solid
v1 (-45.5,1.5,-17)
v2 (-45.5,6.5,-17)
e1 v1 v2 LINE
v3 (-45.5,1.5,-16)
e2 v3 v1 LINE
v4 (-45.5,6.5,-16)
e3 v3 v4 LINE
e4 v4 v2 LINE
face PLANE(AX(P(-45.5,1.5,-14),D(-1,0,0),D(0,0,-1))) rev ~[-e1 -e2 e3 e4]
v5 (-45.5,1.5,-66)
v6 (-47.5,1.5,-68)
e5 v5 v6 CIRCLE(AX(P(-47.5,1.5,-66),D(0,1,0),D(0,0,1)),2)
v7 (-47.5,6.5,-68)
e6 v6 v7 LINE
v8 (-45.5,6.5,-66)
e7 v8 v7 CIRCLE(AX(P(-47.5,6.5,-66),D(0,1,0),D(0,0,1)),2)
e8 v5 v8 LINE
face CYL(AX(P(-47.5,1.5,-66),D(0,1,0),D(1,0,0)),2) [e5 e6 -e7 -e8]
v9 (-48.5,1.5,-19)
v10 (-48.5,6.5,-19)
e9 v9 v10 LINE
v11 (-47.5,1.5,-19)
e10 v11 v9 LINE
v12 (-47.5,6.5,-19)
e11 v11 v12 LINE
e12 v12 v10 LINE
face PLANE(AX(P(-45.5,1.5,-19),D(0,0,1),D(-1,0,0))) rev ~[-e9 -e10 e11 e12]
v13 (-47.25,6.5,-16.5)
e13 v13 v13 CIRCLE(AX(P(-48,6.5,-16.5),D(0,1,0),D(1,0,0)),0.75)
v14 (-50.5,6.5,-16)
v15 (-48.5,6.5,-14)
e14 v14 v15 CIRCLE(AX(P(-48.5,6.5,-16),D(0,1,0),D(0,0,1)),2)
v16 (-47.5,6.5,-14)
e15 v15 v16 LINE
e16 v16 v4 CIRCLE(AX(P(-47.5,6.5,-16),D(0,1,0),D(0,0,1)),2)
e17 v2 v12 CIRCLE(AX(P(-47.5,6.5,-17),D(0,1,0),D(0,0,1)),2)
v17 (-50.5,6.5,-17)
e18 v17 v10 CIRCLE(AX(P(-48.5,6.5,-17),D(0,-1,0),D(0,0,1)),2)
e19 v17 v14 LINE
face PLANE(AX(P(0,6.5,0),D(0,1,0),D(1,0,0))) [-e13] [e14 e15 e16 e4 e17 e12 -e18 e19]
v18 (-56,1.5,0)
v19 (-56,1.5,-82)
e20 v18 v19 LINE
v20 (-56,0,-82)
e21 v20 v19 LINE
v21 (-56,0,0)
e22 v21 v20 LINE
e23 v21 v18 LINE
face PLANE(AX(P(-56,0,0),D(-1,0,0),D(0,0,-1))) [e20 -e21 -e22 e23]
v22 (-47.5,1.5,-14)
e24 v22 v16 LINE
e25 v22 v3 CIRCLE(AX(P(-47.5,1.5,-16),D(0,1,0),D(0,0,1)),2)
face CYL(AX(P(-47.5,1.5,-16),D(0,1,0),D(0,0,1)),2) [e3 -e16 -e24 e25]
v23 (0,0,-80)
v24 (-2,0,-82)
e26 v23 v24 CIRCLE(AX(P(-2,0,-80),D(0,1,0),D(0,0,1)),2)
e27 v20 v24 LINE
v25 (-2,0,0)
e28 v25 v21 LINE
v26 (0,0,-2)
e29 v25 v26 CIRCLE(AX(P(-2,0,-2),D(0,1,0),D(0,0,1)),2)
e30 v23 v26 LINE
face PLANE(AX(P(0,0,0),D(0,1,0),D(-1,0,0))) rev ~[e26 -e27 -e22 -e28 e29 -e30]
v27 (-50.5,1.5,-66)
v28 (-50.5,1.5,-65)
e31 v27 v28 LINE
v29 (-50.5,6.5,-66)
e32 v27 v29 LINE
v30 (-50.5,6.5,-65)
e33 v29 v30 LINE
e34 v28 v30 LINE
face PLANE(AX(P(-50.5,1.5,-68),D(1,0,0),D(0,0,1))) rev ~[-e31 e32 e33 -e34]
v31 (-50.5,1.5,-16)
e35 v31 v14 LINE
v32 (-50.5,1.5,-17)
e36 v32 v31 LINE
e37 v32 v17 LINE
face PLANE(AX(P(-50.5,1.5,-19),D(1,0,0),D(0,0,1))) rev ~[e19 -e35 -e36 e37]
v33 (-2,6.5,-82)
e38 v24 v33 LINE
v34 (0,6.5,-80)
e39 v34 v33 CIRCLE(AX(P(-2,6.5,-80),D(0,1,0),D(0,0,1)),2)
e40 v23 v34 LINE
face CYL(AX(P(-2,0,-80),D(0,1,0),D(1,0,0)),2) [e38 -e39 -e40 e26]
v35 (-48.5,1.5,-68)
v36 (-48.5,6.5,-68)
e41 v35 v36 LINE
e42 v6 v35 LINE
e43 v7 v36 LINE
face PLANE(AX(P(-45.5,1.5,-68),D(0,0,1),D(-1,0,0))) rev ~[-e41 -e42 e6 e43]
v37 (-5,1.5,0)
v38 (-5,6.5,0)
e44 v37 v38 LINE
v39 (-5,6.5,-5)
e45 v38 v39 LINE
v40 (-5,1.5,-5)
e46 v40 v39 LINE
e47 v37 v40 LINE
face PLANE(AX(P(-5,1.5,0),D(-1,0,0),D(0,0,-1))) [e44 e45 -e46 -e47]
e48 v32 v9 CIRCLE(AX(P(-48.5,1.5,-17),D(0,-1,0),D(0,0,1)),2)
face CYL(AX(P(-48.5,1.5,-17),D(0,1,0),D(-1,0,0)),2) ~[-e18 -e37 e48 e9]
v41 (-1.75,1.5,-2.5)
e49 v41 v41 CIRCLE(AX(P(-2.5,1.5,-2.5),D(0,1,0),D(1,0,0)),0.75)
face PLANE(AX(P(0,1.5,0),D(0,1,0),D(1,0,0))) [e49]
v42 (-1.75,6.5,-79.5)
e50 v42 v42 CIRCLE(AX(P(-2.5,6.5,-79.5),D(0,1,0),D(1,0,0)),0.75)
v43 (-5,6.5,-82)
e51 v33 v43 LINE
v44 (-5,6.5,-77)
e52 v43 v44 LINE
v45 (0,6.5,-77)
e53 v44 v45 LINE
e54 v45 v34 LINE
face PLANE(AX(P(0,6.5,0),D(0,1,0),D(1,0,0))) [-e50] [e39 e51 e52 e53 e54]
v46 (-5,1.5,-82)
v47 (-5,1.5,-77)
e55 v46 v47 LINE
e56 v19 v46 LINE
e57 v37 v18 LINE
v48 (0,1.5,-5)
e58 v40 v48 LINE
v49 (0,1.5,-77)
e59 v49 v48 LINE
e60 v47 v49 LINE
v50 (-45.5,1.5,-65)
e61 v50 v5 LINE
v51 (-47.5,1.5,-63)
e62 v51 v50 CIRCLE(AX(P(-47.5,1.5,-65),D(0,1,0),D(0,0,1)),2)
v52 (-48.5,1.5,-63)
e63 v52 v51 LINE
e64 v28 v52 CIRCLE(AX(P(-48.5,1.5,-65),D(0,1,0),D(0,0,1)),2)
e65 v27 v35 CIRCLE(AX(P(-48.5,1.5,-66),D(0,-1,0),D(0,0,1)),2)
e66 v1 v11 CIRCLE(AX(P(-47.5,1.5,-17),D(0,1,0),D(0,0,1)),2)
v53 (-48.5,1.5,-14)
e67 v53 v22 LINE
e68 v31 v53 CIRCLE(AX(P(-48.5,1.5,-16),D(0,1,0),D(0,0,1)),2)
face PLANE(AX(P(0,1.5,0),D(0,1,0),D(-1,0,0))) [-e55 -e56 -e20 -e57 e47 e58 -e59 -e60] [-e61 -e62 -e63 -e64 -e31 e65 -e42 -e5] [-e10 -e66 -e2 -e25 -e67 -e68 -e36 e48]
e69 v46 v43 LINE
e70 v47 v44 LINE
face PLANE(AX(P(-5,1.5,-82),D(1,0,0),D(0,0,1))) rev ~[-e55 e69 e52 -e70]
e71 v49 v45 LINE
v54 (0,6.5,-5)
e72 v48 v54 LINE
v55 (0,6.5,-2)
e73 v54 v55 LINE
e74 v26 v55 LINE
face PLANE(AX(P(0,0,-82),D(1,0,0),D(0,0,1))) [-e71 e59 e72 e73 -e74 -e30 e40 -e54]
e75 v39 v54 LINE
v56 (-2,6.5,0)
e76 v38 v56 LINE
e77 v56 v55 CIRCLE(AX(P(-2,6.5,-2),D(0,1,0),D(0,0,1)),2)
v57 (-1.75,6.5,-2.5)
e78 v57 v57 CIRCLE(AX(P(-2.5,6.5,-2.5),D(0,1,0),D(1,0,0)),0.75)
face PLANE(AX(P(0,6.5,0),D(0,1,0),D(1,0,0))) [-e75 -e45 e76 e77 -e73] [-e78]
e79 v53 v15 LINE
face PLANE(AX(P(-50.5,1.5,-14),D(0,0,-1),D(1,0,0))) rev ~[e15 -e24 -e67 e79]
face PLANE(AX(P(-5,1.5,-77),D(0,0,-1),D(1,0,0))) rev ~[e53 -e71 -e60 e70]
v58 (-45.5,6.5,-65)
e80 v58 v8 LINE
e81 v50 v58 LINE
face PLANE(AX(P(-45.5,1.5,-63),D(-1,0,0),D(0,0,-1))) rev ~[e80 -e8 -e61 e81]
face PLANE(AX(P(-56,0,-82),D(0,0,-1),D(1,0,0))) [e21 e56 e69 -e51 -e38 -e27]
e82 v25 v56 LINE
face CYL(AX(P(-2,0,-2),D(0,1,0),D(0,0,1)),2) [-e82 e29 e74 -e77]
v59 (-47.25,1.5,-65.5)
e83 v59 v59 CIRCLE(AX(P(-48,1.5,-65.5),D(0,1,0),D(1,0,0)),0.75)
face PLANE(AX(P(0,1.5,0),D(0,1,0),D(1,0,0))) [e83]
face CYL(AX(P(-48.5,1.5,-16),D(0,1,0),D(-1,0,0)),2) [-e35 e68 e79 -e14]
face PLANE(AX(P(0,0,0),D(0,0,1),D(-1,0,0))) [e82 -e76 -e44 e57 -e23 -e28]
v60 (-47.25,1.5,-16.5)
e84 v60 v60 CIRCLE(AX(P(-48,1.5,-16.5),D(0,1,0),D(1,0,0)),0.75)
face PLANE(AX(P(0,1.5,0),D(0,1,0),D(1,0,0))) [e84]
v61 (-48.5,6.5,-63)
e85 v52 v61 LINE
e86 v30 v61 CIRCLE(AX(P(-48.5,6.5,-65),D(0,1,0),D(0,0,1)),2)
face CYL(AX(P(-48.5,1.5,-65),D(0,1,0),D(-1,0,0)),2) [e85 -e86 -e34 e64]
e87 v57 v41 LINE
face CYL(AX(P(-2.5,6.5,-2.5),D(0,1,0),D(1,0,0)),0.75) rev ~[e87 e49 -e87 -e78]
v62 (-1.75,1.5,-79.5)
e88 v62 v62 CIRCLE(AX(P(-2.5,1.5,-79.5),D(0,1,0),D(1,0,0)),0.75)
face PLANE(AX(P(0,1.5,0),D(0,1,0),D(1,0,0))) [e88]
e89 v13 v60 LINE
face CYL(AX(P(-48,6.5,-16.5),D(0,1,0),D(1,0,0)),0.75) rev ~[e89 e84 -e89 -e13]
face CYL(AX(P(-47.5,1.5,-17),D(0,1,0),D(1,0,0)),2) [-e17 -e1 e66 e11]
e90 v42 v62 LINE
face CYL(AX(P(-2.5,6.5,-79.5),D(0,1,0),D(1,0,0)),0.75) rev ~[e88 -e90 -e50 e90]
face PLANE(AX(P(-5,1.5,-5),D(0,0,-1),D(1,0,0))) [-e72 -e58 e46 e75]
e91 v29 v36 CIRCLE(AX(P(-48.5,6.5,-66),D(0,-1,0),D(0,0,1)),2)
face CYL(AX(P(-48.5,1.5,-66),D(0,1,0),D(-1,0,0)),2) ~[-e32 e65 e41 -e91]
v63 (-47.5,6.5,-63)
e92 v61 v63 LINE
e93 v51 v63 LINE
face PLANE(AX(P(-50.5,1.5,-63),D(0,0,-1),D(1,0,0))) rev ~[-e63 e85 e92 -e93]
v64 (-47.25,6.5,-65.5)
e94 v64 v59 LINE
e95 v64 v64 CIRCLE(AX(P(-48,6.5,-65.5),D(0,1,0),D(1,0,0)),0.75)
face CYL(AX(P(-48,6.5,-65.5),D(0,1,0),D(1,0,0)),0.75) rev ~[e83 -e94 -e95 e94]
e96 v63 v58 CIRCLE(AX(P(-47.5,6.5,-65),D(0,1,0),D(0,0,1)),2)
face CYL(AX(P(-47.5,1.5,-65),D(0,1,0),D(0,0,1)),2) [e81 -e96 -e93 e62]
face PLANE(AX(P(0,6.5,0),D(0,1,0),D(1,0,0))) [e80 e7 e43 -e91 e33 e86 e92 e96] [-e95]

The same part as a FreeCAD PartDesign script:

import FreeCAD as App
import Part
import Sketcher

V = App.Vector


def edges_at(feature, points):
    """Names of the edges that pass closest to the given points."""
    edges = feature.Shape.Edges
    near = lambda p: min(range(len(edges)), key=lambda i: edges[i].distToShape(Part.Vertex(*p))[0])
    return sorted({f"Edge{near(p) + 1}" for p in points})

doc = App.newDocument("Part")
params = doc.addObject("Spreadsheet::Sheet", "Params")
for row, (alias, value) in enumerate([
    ("sketch1_width", "56 mm"),
    ("sketch1_height", "82 mm"),
    ("pad1_length", "1.5 mm"),
    ("sketch2_width", "5 mm"),
    ("pad2_length", "5 mm"),
    ("sketch3_diameter", "1.5 mm"),
    ("pocket1_length", "5 mm"),
    ("fillet_radius", "2 mm"),
], start=1):
    params.set(f"A{row}", alias)
    params.set(f"B{row}", "=" + value)
    params.setAlias(f"B{row}", alias)

body = doc.addObject("PartDesign::Body", "Body")

# Sketch on XZ plane
sketch1 = body.newObject("Sketcher::SketchObject", "Sketch")
sketch1.AttachmentSupport = (doc.getObject("XZ_Plane"), [""])
sketch1.MapMode = "FlatFace"
sketch1.addGeometry(Part.LineSegment(V(-56, 0, 0), V(0, 0, 0)), False)
sketch1.addGeometry(Part.LineSegment(V(0, 0, 0), V(0, -82, 0)), False)
sketch1.addGeometry(Part.LineSegment(V(0, -82, 0), V(-56, -82, 0)), False)
sketch1.addGeometry(Part.LineSegment(V(-56, -82, 0), V(-56, 0, 0)), False)
sketch1.addConstraint(Sketcher.Constraint("Coincident", 0, 2, 1, 1))
sketch1.addConstraint(Sketcher.Constraint("Coincident", 1, 2, 2, 1))
sketch1.addConstraint(Sketcher.Constraint("Coincident", 2, 2, 3, 1))
sketch1.addConstraint(Sketcher.Constraint("Coincident", 3, 2, 0, 1))
sketch1.addConstraint(Sketcher.Constraint("Horizontal", 0))
sketch1.addConstraint(Sketcher.Constraint("Vertical", 1))
sketch1.addConstraint(Sketcher.Constraint("Horizontal", 2))
sketch1.addConstraint(Sketcher.Constraint("Vertical", 3))
sketch1.addConstraint(Sketcher.Constraint("Coincident", 0, 2, -1, 1))
sketch1.addConstraint(Sketcher.Constraint("DistanceX", 0, 1, 0, 2, 56.0))
sketch1.addConstraint(Sketcher.Constraint("DistanceY", 1, 2, 1, 1, 82.0))
sketch1.setExpression("Constraints[9]", "Params.sketch1_width")
sketch1.setExpression("Constraints[10]", "Params.sketch1_height")
pad1 = body.newObject("PartDesign::Pad", "Pad")
pad1.Profile = sketch1
pad1.setExpression("Length", "Params.pad1_length")
pad1.Reversed = True

# Sketch on XZ plane
sketch2 = body.newObject("Sketcher::SketchObject", "Sketch001")
sketch2.AttachmentSupport = (doc.getObject("XZ_Plane"), [""])
sketch2.MapMode = "FlatFace"
sketch2.AttachmentOffset = App.Placement(V(0, 0, -1.5), App.Rotation())
sketch2.addGeometry(Part.LineSegment(V(-5, -5, 0), V(-5, 0, 0)), False)
sketch2.addGeometry(Part.LineSegment(V(-5, 0, 0), V(0, 0, 0)), False)
sketch2.addGeometry(Part.LineSegment(V(0, 0, 0), V(0, -5, 0)), False)
sketch2.addGeometry(Part.LineSegment(V(0, -5, 0), V(-5, -5, 0)), False)
sketch2.addGeometry(Part.LineSegment(V(0, -82, 0), V(-5, -82, 0)), False)
sketch2.addGeometry(Part.LineSegment(V(-5, -82, 0), V(-5, -77, 0)), False)
sketch2.addGeometry(Part.LineSegment(V(-5, -77, 0), V(0, -77, 0)), False)
sketch2.addGeometry(Part.LineSegment(V(0, -77, 0), V(0, -82, 0)), False)
sketch2.addGeometry(Part.LineSegment(V(-50, -19, 0), V(-50, -14, 0)), False)
sketch2.addGeometry(Part.LineSegment(V(-50, -14, 0), V(-46, -14, 0)), False)
sketch2.addGeometry(Part.LineSegment(V(-46, -14, 0), V(-46, -19, 0)), False)
sketch2.addGeometry(Part.LineSegment(V(-46, -19, 0), V(-50, -19, 0)), False)
sketch2.addGeometry(Part.LineSegment(V(-50, -68, 0), V(-50, -63, 0)), False)
sketch2.addGeometry(Part.LineSegment(V(-50, -63, 0), V(-46, -63, 0)), False)
sketch2.addGeometry(Part.LineSegment(V(-46, -63, 0), V(-46, -68, 0)), False)
sketch2.addGeometry(Part.LineSegment(V(-46, -68, 0), V(-50, -68, 0)), False)
sketch2.addConstraint(Sketcher.Constraint("Coincident", 0, 2, 1, 1))
sketch2.addConstraint(Sketcher.Constraint("Coincident", 1, 2, 2, 1))
sketch2.addConstraint(Sketcher.Constraint("Coincident", 2, 2, 3, 1))
sketch2.addConstraint(Sketcher.Constraint("Coincident", 3, 2, 0, 1))
sketch2.addConstraint(Sketcher.Constraint("Coincident", 4, 2, 5, 1))
sketch2.addConstraint(Sketcher.Constraint("Coincident", 5, 2, 6, 1))
sketch2.addConstraint(Sketcher.Constraint("Coincident", 6, 2, 7, 1))
sketch2.addConstraint(Sketcher.Constraint("Coincident", 7, 2, 4, 1))
sketch2.addConstraint(Sketcher.Constraint("Coincident", 8, 2, 9, 1))
sketch2.addConstraint(Sketcher.Constraint("Coincident", 9, 2, 10, 1))
sketch2.addConstraint(Sketcher.Constraint("Coincident", 10, 2, 11, 1))
sketch2.addConstraint(Sketcher.Constraint("Coincident", 11, 2, 8, 1))
sketch2.addConstraint(Sketcher.Constraint("Coincident", 12, 2, 13, 1))
sketch2.addConstraint(Sketcher.Constraint("Coincident", 13, 2, 14, 1))
sketch2.addConstraint(Sketcher.Constraint("Coincident", 14, 2, 15, 1))
sketch2.addConstraint(Sketcher.Constraint("Coincident", 15, 2, 12, 1))
sketch2.addConstraint(Sketcher.Constraint("Vertical", 0))
sketch2.addConstraint(Sketcher.Constraint("Horizontal", 1))
sketch2.addConstraint(Sketcher.Constraint("Vertical", 2))
sketch2.addConstraint(Sketcher.Constraint("Horizontal", 3))
sketch2.addConstraint(Sketcher.Constraint("Horizontal", 4))
sketch2.addConstraint(Sketcher.Constraint("Vertical", 5))
sketch2.addConstraint(Sketcher.Constraint("Horizontal", 6))
sketch2.addConstraint(Sketcher.Constraint("Vertical", 7))
sketch2.addConstraint(Sketcher.Constraint("Vertical", 8))
sketch2.addConstraint(Sketcher.Constraint("Horizontal", 9))
sketch2.addConstraint(Sketcher.Constraint("Vertical", 10))
sketch2.addConstraint(Sketcher.Constraint("Horizontal", 11))
sketch2.addConstraint(Sketcher.Constraint("Vertical", 12))
sketch2.addConstraint(Sketcher.Constraint("Horizontal", 13))
sketch2.addConstraint(Sketcher.Constraint("Vertical", 14))
sketch2.addConstraint(Sketcher.Constraint("Horizontal", 15))
sketch2.addConstraint(Sketcher.Constraint("Coincident", 1, 2, -1, 1))
sketch2.addConstraint(Sketcher.Constraint("PointOnObject", 6, 2, -2))
sketch2.addConstraint(Sketcher.Constraint("Vertical", 3, 2, 4, 2))
sketch2.addConstraint(Sketcher.Constraint("Vertical", 11, 2, 12, 2))
sketch2.addConstraint(Sketcher.Constraint("Vertical", 10, 2, 13, 2))
sketch2.addConstraint(Sketcher.Constraint("Equal", 6, 9))
sketch2.addConstraint(Sketcher.Constraint("Equal", 15, 0))
sketch2.addConstraint(Sketcher.Constraint("Equal", 2, 5))
sketch2.addConstraint(Sketcher.Constraint("Equal", 7, 8))
sketch2.addConstraint(Sketcher.Constraint("Equal", 10, 12))
sketch2.addConstraint(Sketcher.Constraint("DistanceX", 1, 1, 1, 2, 5.0))
sketch2.addConstraint(Sketcher.Constraint("DistanceY", 8, 2, -1, 1, 14.0))
sketch2.addConstraint(Sketcher.Constraint("DistanceY", 5, 2, 12, 2, 14.0))
sketch2.addConstraint(Sketcher.Constraint("DistanceY", 4, 2, -1, 1, 82.0))
sketch2.addConstraint(Sketcher.Constraint("DistanceX", 8, 2, -1, 1, 50.5))
sketch2.setExpression("Constraints[42]", "Params.sketch2_width")
pad2 = body.newObject("PartDesign::Pad", "Pad001")
pad2.Profile = sketch2
pad2.setExpression("Length", "Params.pad2_length")
pad2.Reversed = True

# Sketch on XZ plane
sketch3 = body.newObject("Sketcher::SketchObject", "Sketch002")
sketch3.AttachmentSupport = (doc.getObject("XZ_Plane"), [""])
sketch3.MapMode = "FlatFace"
sketch3.AttachmentOffset = App.Placement(V(0, 0, -6.5), App.Rotation())
sketch3.addGeometry(Part.Circle(V(-2.5, -2.5, 0), V(0, 0, 1), 0.8), False)
sketch3.addGeometry(Part.Circle(V(-2.5, -79.5, 0), V(0, 0, 1), 0.8), False)
sketch3.addGeometry(Part.Circle(V(-48, -16.5, 0), V(0, 0, 1), 0.8), False)
sketch3.addGeometry(Part.Circle(V(-48, -65.5, 0), V(0, 0, 1), 0.8), False)
sketch3.addConstraint(Sketcher.Constraint("Equal", 0, 1))
sketch3.addConstraint(Sketcher.Constraint("Equal", 1, 2))
sketch3.addConstraint(Sketcher.Constraint("Equal", 2, 3))
sketch3.addConstraint(Sketcher.Constraint("Vertical", 0, 3, 1, 3))
sketch3.addConstraint(Sketcher.Constraint("Vertical", 2, 3, 3, 3))
sketch3.addConstraint(Sketcher.Constraint("Diameter", 0, 1.5))
sketch3.addConstraint(Sketcher.Constraint("DistanceX", 0, 3, -1, 1, 2.5))
sketch3.addConstraint(Sketcher.Constraint("DistanceY", 0, 3, -1, 1, 2.5))
sketch3.addConstraint(Sketcher.Constraint("DistanceY", 2, 3, -1, 1, 16.5))
sketch3.addConstraint(Sketcher.Constraint("DistanceX", 2, 3, -1, 1, 48.0))
sketch3.addConstraint(Sketcher.Constraint("DistanceY", 1, 3, 0, 3, 77.0))
sketch3.addConstraint(Sketcher.Constraint("DistanceY", 1, 3, 3, 3, 14.0))
sketch3.setExpression("Constraints[5]", "Params.sketch3_diameter")
pocket1 = body.newObject("PartDesign::Pocket", "Pocket")
pocket1.Profile = sketch3
pocket1.setExpression("Length", "Params.pocket1_length")
pocket1.Reversed = True
doc.recompute()

fillet = body.newObject("PartDesign::Fillet", "Fillet")
fillet.Base = (pocket1, edges_at(pocket1, [
    (0, 3.25, 0),
    (0, 3.25, -82),
    (-45.5, 4, -14),
    (-45.5, 4, -19),
    (-50.5, 4, -14),
    (-50.5, 4, -19),
    (-45.5, 4, -63),
    (-45.5, 4, -68),
    (-50.5, 4, -68),
    (-50.5, 4, -63),
]))
fillet.setExpression("Radius", "Params.fillet_radius")

doc.recompute()
